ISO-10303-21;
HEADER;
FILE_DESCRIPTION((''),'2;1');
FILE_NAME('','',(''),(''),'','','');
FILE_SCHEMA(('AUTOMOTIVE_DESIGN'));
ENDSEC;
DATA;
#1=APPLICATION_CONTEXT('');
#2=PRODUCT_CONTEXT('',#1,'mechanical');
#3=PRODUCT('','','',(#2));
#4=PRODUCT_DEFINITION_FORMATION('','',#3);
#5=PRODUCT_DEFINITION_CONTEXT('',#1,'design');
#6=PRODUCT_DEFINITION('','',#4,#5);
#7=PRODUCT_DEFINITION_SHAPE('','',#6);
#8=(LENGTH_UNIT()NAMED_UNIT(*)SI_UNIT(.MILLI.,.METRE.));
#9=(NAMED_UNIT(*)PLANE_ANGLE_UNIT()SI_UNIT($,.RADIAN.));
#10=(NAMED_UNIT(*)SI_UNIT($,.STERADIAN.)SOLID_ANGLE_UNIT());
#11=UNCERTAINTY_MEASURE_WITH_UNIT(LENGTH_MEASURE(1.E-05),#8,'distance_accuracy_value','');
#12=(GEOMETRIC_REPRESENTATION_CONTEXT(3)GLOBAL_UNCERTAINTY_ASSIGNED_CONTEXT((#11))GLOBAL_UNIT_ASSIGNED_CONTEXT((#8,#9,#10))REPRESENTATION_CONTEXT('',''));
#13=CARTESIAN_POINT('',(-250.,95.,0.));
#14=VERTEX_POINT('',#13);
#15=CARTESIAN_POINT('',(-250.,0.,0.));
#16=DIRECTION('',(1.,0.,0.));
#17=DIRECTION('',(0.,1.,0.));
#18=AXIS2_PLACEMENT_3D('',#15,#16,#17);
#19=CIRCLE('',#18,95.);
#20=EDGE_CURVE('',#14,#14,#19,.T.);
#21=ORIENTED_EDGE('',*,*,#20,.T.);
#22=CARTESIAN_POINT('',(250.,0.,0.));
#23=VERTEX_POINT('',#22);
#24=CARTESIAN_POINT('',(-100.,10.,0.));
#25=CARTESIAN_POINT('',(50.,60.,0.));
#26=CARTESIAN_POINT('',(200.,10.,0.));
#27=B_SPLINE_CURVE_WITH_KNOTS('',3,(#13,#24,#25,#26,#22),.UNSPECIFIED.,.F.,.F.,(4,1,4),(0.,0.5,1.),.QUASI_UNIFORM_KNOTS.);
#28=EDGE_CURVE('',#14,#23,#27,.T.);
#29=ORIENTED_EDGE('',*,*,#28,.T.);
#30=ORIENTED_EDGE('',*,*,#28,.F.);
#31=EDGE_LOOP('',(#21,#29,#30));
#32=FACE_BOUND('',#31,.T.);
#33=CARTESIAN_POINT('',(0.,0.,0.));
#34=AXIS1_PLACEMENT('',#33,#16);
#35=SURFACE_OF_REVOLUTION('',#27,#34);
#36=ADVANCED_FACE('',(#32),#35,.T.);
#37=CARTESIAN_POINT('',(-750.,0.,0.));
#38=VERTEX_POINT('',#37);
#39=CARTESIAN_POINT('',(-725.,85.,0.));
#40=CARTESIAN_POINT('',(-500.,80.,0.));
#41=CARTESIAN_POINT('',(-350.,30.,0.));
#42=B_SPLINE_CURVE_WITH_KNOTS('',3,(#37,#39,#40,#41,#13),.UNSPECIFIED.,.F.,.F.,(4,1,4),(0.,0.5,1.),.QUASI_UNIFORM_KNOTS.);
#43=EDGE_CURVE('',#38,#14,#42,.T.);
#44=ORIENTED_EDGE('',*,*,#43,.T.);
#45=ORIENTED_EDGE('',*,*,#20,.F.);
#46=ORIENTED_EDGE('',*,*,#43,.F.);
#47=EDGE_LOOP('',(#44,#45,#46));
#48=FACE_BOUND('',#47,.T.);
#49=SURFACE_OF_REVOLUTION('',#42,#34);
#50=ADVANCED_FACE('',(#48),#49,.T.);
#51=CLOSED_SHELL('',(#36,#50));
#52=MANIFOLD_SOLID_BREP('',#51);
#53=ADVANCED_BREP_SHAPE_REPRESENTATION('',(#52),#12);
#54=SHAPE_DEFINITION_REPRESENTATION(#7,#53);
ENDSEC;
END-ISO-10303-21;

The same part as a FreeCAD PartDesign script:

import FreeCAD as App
import Part
import Sketcher
from FreeCAD import Vector

doc = App.newDocument("Part")
body = doc.addObject("PartDesign::Body", "Body")

# Sketch on XY plane
sketch1 = doc.addObject("Sketcher::SketchObject", "Sketch")
body.addObject(sketch1)
sketch1.AttachmentSupport = (doc.XY_Plane, [""])
sketch1.MapMode = "FlatFace"
sketch1.addGeometry(Part.BSplineCurve([Vector(-250, 95, 0), Vector(-100, 10, 0), Vector(50, 60, 0), Vector(200, 10, 0), Vector(250, 0, 0)], [4, 1, 4], [0, 0.5, 1], False, 3, [1, 1, 1, 1, 1], False), False)
sketch1.addGeometry(Part.BSplineCurve([Vector(-750, 0, 0), Vector(-725, 85, 0), Vector(-500, 80, 0), Vector(-350, 30, 0), Vector(-250, 95, 0)], [4, 1, 4], [0, 0.5, 1], False, 3, [1, 1, 1, 1, 1], False), False)
sketch1.addGeometry(Part.LineSegment(Vector(-750, 0, 0), Vector(250, 0, 0)), False)
sketch1.addConstraint(Sketcher.Constraint("Block", 0))
sketch1.addConstraint(Sketcher.Constraint("Block", 1))
sketch1.addConstraint(Sketcher.Constraint("Coincident", 1, 1, 2, 1))
sketch1.addConstraint(Sketcher.Constraint("Coincident", 2, 2, 0, 2))
revolution = doc.addObject("PartDesign::Revolution", "Revolution")
body.addObject(revolution)
revolution.Profile = sketch1
revolution.ReferenceAxis = (sketch1, ["H_Axis"])
revolution.Angle = 360

doc.recompute()
